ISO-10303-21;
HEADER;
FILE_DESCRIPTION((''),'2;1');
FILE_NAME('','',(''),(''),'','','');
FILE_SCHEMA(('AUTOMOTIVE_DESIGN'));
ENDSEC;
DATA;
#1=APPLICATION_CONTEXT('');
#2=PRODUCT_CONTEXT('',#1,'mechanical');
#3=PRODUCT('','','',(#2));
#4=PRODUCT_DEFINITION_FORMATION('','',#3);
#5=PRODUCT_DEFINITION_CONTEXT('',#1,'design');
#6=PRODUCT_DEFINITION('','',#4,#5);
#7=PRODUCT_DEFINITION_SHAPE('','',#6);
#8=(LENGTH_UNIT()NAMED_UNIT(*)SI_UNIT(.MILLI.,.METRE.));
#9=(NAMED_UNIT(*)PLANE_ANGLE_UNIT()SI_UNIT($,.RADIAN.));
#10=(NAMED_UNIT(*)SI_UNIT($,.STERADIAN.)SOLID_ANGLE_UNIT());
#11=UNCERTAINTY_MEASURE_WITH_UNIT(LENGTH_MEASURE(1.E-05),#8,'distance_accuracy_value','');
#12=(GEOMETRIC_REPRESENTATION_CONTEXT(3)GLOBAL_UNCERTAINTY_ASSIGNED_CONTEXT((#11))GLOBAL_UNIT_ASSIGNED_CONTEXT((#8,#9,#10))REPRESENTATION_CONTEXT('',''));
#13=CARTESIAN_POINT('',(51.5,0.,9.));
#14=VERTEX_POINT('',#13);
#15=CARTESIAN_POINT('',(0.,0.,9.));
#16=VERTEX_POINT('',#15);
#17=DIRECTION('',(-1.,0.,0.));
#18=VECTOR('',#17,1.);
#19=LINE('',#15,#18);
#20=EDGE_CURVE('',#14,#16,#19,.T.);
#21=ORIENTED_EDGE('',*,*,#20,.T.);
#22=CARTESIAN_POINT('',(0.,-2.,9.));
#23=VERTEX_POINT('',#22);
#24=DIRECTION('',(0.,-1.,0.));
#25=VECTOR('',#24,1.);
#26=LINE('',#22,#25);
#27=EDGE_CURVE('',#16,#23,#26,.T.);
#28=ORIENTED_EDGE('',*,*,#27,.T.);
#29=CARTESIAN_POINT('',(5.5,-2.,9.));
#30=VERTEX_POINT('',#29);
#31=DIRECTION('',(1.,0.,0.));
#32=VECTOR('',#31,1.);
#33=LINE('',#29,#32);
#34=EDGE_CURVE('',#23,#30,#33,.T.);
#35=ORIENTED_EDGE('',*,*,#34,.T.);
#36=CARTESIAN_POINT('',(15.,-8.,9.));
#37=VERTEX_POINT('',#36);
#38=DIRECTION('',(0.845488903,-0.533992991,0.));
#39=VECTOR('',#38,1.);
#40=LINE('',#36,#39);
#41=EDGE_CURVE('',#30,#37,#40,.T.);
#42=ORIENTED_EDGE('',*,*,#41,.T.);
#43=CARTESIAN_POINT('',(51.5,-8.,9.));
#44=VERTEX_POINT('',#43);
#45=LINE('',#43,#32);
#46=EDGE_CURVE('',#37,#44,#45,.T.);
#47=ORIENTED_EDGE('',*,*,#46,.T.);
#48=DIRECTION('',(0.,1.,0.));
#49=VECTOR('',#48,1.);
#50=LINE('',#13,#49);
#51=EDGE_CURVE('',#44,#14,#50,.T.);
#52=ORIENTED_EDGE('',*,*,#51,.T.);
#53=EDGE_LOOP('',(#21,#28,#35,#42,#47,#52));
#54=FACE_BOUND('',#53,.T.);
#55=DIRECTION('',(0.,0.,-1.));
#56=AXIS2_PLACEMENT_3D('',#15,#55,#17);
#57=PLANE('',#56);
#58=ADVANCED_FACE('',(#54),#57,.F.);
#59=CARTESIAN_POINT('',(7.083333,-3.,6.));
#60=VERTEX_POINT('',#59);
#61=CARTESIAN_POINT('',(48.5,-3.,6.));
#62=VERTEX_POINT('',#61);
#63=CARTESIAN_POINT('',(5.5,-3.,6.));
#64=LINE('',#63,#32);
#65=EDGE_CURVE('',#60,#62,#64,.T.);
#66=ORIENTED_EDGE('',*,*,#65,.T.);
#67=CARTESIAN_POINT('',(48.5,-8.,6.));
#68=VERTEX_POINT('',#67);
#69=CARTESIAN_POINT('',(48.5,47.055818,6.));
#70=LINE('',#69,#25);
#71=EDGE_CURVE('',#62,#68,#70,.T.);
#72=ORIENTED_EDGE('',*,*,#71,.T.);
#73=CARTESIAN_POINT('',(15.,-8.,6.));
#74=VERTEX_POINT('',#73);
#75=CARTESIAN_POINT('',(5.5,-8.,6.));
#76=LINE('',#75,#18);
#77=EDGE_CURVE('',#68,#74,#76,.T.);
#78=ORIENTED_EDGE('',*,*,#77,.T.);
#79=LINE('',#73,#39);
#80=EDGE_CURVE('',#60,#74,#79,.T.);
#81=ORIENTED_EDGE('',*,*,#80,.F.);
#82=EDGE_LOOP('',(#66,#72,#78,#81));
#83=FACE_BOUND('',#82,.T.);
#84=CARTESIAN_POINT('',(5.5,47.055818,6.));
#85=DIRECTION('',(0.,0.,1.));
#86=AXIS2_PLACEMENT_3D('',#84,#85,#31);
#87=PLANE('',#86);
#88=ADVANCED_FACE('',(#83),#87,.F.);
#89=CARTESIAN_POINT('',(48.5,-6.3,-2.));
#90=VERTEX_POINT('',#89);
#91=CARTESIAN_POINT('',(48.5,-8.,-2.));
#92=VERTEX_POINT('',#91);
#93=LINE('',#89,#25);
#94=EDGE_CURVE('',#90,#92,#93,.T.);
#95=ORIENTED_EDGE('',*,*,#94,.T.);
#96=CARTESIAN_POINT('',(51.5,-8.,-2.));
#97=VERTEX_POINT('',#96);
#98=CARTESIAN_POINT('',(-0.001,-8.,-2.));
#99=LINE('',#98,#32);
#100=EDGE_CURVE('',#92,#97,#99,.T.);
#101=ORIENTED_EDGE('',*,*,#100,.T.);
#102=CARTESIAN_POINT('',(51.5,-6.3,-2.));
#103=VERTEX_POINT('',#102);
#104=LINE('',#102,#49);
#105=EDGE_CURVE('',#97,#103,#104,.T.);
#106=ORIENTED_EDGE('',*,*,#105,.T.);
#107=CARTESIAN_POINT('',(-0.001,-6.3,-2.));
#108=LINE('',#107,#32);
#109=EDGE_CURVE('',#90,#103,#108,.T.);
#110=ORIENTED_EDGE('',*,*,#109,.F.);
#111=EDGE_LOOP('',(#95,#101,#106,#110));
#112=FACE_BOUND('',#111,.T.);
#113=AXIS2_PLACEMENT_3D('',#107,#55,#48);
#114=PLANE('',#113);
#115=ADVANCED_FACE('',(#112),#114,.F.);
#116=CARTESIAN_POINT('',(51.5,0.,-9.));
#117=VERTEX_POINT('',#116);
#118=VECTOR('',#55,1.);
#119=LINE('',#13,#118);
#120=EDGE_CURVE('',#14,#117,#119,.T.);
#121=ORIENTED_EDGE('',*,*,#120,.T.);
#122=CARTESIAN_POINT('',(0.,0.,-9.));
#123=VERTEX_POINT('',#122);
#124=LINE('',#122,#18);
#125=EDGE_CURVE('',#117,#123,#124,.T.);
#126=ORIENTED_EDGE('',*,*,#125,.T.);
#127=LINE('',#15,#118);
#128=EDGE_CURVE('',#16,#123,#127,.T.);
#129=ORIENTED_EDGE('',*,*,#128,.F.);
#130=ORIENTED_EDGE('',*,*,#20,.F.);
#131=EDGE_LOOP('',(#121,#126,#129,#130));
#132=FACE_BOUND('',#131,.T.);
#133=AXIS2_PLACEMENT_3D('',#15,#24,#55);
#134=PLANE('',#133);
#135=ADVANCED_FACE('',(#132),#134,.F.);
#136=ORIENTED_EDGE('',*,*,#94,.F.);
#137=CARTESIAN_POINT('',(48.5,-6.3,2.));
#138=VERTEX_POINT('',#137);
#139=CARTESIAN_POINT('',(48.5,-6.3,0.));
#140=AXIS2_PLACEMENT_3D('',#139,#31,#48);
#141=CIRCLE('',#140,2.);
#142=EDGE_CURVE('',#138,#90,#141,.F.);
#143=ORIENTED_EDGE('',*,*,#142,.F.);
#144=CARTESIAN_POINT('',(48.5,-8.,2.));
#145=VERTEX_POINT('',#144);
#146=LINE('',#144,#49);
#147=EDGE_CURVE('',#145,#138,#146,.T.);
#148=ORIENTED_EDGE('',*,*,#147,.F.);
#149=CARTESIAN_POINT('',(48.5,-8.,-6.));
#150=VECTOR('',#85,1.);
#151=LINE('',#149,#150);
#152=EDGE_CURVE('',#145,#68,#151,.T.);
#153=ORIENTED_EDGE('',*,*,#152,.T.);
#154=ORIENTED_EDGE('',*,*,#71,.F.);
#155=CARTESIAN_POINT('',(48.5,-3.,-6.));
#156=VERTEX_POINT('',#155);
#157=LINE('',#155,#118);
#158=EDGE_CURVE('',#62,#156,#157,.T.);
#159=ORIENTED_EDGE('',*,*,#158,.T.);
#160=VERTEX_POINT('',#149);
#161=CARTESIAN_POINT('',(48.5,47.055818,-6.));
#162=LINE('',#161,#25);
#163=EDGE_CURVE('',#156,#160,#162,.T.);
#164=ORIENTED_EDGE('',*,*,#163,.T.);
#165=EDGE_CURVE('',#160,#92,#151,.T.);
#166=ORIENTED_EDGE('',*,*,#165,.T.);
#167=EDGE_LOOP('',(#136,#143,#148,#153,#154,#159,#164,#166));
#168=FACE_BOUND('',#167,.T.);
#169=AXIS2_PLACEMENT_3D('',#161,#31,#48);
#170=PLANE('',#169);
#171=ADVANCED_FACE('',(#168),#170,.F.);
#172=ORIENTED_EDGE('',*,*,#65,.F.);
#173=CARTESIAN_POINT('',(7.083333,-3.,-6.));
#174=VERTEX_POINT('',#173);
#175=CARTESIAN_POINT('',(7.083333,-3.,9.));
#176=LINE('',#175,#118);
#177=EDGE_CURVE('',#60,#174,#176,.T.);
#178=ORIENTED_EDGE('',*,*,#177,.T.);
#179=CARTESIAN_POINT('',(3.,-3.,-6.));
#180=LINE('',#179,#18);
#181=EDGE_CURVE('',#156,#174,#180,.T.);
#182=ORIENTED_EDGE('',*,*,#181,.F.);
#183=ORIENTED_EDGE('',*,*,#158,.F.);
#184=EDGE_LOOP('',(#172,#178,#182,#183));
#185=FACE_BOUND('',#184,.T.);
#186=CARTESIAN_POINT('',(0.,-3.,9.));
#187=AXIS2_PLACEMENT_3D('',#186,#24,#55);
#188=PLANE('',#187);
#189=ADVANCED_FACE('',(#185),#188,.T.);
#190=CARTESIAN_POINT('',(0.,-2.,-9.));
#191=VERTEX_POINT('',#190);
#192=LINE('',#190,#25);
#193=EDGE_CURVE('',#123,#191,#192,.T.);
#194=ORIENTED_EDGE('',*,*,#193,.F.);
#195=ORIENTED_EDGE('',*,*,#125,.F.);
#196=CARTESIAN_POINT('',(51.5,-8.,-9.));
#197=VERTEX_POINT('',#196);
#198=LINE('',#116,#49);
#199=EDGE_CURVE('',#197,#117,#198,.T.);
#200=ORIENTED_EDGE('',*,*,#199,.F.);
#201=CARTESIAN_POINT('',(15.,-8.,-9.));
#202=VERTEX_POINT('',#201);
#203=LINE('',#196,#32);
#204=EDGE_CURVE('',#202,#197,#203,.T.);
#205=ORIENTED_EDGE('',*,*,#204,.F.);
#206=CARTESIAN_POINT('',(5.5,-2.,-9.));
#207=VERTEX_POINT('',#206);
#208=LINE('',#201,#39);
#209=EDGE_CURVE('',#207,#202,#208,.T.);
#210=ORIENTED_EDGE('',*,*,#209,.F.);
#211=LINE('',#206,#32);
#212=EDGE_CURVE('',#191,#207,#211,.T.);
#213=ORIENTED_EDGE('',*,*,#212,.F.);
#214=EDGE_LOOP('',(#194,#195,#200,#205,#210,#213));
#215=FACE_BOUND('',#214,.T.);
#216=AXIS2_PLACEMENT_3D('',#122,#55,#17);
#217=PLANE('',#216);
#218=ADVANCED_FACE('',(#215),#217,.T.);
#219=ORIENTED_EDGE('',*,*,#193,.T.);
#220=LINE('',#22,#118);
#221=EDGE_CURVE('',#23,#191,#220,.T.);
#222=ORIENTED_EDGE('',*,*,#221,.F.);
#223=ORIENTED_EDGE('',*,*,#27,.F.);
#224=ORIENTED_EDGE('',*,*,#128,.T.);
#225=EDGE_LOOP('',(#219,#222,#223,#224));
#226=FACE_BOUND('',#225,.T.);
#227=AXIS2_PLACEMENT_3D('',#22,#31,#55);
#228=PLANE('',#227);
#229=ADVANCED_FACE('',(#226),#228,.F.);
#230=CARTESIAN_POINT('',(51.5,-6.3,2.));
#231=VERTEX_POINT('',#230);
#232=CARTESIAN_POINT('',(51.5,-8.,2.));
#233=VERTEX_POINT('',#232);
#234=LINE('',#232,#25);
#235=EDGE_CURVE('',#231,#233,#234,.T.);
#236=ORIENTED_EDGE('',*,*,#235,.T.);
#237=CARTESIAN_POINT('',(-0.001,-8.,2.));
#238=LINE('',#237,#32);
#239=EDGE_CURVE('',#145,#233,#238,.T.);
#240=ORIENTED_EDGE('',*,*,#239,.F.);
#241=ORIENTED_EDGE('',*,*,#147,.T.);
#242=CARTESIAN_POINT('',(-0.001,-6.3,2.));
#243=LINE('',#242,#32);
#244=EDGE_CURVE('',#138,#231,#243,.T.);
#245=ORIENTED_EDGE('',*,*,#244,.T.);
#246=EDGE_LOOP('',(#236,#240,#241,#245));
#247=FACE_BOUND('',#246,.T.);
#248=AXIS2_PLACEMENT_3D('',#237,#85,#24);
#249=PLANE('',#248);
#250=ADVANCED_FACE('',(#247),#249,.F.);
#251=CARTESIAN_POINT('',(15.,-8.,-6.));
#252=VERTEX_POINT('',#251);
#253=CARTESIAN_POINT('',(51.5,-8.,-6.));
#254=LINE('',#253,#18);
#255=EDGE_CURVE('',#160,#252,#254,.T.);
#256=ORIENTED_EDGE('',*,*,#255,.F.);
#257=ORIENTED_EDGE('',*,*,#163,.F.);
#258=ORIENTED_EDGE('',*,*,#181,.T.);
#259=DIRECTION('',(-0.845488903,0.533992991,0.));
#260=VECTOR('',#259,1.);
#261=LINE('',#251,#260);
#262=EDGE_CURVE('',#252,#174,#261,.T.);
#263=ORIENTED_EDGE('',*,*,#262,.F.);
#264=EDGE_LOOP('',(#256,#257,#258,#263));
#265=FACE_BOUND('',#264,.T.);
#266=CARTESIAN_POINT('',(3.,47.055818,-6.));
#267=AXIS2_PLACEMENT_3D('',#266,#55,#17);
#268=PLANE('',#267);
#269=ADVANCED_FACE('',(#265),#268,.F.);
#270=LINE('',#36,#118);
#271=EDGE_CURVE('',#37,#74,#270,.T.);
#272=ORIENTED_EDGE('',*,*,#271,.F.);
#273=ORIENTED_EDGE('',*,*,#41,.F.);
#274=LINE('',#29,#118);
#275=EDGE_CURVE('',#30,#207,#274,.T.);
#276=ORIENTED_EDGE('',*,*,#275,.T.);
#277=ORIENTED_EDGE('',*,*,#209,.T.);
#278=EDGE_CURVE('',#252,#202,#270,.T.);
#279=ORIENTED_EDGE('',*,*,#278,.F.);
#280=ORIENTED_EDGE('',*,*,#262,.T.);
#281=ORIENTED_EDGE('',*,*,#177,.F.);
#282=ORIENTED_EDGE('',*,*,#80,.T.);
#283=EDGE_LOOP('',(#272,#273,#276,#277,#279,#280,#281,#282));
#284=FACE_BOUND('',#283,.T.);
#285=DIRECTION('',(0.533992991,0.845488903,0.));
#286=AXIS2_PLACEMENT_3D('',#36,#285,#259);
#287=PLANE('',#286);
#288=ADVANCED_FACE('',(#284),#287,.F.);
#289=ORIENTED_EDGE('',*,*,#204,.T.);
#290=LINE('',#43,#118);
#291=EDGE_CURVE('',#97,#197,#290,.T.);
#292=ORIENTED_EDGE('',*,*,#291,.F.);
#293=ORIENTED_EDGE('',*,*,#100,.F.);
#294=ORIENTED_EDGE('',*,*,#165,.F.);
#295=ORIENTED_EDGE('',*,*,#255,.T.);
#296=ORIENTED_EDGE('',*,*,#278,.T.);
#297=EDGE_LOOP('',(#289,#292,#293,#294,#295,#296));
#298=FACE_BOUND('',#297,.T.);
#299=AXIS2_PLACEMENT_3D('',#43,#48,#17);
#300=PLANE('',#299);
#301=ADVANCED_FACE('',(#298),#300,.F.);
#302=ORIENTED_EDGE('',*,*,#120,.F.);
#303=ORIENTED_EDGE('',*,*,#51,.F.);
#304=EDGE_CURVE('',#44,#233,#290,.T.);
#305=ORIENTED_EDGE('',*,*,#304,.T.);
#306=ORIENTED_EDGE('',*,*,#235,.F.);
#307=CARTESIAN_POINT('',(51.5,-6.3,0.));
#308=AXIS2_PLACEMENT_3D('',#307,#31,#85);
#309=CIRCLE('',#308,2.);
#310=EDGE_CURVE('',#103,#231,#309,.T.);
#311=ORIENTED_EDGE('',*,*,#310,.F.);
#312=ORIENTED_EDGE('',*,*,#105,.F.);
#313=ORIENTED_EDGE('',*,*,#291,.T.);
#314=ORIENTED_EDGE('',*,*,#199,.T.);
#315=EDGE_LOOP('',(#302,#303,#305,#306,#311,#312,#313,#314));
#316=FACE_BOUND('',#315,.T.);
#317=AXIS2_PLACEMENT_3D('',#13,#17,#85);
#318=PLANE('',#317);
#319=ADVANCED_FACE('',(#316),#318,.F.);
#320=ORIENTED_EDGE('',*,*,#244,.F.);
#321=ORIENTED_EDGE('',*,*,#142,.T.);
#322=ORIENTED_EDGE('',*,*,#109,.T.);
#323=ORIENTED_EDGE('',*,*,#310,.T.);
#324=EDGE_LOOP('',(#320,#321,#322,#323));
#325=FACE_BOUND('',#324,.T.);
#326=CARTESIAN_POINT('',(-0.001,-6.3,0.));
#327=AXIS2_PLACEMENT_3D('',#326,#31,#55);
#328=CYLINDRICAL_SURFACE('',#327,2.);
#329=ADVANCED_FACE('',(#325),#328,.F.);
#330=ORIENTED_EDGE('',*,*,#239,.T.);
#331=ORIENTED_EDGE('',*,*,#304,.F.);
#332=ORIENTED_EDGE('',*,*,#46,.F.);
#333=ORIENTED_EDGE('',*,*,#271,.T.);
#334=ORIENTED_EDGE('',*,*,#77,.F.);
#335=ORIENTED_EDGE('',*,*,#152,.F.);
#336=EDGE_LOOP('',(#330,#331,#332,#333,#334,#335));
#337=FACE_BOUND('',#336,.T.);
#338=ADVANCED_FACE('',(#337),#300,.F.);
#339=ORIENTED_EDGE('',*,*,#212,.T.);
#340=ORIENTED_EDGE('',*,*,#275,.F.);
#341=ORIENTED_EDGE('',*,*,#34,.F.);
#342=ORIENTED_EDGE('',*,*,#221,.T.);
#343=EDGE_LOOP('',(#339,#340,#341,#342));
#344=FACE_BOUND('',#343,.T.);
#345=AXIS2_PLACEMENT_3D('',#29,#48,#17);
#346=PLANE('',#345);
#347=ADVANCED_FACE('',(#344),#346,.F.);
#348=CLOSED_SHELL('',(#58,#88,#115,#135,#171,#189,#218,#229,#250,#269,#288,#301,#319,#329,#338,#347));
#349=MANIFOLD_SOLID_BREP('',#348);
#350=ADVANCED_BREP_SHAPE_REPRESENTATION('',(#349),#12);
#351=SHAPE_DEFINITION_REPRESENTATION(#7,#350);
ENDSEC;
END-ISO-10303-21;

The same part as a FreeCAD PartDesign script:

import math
import FreeCAD as App
import Part
import Sketcher


def add_polygon(sketch, points):
    """Adds a closed chain of lines whose ends are joined by coincident constraints."""
    first, n = sketch.GeometryCount, len(points)
    for a, b in zip(points, points[1:] + points[:1]):
        sketch.addGeometry(Part.LineSegment(App.Vector(*a, 0), App.Vector(*b, 0)), False)
    for i in range(n):
        sketch.addConstraint(Sketcher.Constraint("Coincident", first + i, 2, first + (i + 1) % n, 1))

doc = App.newDocument("Part")
body = doc.addObject("PartDesign::Body", "Body")

# Sketch on XY plane
sketch1 = doc.addObject("Sketcher::SketchObject", "Sketch")
body.addObject(sketch1)
sketch1.AttachmentSupport = (doc.XY_Plane, [""])
sketch1.MapMode = "FlatFace"
add_polygon(sketch1, [(51.5, 0), (0, 0), (0, -2), (5.5, -2), (15, -8), (51.5, -8)])  # lines 0-5
sketch1.addConstraint([
    Sketcher.Constraint("Horizontal", 0),
    Sketcher.Constraint("Vertical", 1),
    Sketcher.Constraint("Horizontal", 2),
    Sketcher.Constraint("Horizontal", 4),
    Sketcher.Constraint("Vertical", 5),
    Sketcher.Constraint("Coincident", 0, 2, -1, 1),
    Sketcher.Constraint("DistanceY", 1, 2, 1, 1, 2.0),
    Sketcher.Constraint("DistanceY", 5, 1, 5, 2, 8.0),
    Sketcher.Constraint("DistanceX", 0, 2, 0, 1, 51.5),
    Sketcher.Constraint("DistanceX", 2, 1, 2, 2, 5.5),
    Sketcher.Constraint("DistanceX", 4, 1, 4, 2, 36.5),
])
pad1 = doc.addObject("PartDesign::Pad", "Pad")
body.addObject(pad1)
pad1.Profile = sketch1
pad1.Length = 18
pad1.Midplane = True

# Sketch on XZ plane
sketch2 = doc.addObject("Sketcher::SketchObject", "Sketch001")
body.addObject(sketch2)
sketch2.AttachmentSupport = (doc.XZ_Plane, [""])
sketch2.MapMode = "FlatFace"
sketch2.AttachmentOffset = App.Placement(App.Vector(0, 0, 8), App.Rotation())
add_polygon(sketch2, [(48.5, -6), (48.5, 6), (3, 6), (3, -6)])  # lines 0-3
sketch2.addConstraint([
    Sketcher.Constraint("Vertical", 0),
    Sketcher.Constraint("Horizontal", 1),
    Sketcher.Constraint("Vertical", 2),
    Sketcher.Constraint("Horizontal", 3),
    Sketcher.Constraint("DistanceY", 0, 1, 0, 2, 12.0),
    Sketcher.Constraint("DistanceX", 1, 2, 1, 1, 45.5),
    Sketcher.Constraint("DistanceY", -1, 1, 0, 2, 6.0),
    Sketcher.Constraint("DistanceX", -1, 1, 1, 2, 3.0),
])
pocket1 = doc.addObject("PartDesign::Pocket", "Pocket")
body.addObject(pocket1)
pocket1.Profile = sketch2
pocket1.Length = 5

# Sketch on YZ plane
sketch3 = doc.addObject("Sketcher::SketchObject", "Sketch002")
body.addObject(sketch3)
sketch3.AttachmentSupport = (doc.YZ_Plane, [""])
sketch3.MapMode = "FlatFace"
sketch3.AttachmentOffset = App.Placement(App.Vector(0, 0, 51.5), App.Rotation())
sketch3.addGeometry([
    Part.LineSegment(App.Vector(-8, -2, 0), App.Vector(-6.3, -2, 0)),
    Part.ArcOfCircle(Part.Circle(App.Vector(-6.3, 0, 0), App.Vector(0, 0, 1), 2), math.radians(-90), math.radians(90)),
    Part.LineSegment(App.Vector(-6.3, 2, 0), App.Vector(-8, 2, 0)),
    Part.LineSegment(App.Vector(-8, 2, 0), App.Vector(-8, -2, 0)),
], False)
sketch3.addConstraint([
    Sketcher.Constraint("Tangent", 0, 2, 1, 1),
    Sketcher.Constraint("Tangent", 1, 2, 2, 1),
    Sketcher.Constraint("Coincident", 2, 2, 3, 1),
    Sketcher.Constraint("Coincident", 3, 2, 0, 1),
    Sketcher.Constraint("Horizontal", 0),
    Sketcher.Constraint("Horizontal", 2),
    Sketcher.Constraint("Vertical", 3),
    Sketcher.Constraint("PointOnObject", 1, 3, -1),
    Sketcher.Constraint("Radius", 1, 2.0),
    Sketcher.Constraint("DistanceX", 0, 1, 0, 2, 1.7),
    Sketcher.Constraint("DistanceX", 2, 2, -1, 1, 8.0),
])
pocket2 = doc.addObject("PartDesign::Pocket", "Pocket001")
body.addObject(pocket2)
pocket2.Profile = sketch3
pocket2.Type = "UpToFirst"

doc.recompute()
